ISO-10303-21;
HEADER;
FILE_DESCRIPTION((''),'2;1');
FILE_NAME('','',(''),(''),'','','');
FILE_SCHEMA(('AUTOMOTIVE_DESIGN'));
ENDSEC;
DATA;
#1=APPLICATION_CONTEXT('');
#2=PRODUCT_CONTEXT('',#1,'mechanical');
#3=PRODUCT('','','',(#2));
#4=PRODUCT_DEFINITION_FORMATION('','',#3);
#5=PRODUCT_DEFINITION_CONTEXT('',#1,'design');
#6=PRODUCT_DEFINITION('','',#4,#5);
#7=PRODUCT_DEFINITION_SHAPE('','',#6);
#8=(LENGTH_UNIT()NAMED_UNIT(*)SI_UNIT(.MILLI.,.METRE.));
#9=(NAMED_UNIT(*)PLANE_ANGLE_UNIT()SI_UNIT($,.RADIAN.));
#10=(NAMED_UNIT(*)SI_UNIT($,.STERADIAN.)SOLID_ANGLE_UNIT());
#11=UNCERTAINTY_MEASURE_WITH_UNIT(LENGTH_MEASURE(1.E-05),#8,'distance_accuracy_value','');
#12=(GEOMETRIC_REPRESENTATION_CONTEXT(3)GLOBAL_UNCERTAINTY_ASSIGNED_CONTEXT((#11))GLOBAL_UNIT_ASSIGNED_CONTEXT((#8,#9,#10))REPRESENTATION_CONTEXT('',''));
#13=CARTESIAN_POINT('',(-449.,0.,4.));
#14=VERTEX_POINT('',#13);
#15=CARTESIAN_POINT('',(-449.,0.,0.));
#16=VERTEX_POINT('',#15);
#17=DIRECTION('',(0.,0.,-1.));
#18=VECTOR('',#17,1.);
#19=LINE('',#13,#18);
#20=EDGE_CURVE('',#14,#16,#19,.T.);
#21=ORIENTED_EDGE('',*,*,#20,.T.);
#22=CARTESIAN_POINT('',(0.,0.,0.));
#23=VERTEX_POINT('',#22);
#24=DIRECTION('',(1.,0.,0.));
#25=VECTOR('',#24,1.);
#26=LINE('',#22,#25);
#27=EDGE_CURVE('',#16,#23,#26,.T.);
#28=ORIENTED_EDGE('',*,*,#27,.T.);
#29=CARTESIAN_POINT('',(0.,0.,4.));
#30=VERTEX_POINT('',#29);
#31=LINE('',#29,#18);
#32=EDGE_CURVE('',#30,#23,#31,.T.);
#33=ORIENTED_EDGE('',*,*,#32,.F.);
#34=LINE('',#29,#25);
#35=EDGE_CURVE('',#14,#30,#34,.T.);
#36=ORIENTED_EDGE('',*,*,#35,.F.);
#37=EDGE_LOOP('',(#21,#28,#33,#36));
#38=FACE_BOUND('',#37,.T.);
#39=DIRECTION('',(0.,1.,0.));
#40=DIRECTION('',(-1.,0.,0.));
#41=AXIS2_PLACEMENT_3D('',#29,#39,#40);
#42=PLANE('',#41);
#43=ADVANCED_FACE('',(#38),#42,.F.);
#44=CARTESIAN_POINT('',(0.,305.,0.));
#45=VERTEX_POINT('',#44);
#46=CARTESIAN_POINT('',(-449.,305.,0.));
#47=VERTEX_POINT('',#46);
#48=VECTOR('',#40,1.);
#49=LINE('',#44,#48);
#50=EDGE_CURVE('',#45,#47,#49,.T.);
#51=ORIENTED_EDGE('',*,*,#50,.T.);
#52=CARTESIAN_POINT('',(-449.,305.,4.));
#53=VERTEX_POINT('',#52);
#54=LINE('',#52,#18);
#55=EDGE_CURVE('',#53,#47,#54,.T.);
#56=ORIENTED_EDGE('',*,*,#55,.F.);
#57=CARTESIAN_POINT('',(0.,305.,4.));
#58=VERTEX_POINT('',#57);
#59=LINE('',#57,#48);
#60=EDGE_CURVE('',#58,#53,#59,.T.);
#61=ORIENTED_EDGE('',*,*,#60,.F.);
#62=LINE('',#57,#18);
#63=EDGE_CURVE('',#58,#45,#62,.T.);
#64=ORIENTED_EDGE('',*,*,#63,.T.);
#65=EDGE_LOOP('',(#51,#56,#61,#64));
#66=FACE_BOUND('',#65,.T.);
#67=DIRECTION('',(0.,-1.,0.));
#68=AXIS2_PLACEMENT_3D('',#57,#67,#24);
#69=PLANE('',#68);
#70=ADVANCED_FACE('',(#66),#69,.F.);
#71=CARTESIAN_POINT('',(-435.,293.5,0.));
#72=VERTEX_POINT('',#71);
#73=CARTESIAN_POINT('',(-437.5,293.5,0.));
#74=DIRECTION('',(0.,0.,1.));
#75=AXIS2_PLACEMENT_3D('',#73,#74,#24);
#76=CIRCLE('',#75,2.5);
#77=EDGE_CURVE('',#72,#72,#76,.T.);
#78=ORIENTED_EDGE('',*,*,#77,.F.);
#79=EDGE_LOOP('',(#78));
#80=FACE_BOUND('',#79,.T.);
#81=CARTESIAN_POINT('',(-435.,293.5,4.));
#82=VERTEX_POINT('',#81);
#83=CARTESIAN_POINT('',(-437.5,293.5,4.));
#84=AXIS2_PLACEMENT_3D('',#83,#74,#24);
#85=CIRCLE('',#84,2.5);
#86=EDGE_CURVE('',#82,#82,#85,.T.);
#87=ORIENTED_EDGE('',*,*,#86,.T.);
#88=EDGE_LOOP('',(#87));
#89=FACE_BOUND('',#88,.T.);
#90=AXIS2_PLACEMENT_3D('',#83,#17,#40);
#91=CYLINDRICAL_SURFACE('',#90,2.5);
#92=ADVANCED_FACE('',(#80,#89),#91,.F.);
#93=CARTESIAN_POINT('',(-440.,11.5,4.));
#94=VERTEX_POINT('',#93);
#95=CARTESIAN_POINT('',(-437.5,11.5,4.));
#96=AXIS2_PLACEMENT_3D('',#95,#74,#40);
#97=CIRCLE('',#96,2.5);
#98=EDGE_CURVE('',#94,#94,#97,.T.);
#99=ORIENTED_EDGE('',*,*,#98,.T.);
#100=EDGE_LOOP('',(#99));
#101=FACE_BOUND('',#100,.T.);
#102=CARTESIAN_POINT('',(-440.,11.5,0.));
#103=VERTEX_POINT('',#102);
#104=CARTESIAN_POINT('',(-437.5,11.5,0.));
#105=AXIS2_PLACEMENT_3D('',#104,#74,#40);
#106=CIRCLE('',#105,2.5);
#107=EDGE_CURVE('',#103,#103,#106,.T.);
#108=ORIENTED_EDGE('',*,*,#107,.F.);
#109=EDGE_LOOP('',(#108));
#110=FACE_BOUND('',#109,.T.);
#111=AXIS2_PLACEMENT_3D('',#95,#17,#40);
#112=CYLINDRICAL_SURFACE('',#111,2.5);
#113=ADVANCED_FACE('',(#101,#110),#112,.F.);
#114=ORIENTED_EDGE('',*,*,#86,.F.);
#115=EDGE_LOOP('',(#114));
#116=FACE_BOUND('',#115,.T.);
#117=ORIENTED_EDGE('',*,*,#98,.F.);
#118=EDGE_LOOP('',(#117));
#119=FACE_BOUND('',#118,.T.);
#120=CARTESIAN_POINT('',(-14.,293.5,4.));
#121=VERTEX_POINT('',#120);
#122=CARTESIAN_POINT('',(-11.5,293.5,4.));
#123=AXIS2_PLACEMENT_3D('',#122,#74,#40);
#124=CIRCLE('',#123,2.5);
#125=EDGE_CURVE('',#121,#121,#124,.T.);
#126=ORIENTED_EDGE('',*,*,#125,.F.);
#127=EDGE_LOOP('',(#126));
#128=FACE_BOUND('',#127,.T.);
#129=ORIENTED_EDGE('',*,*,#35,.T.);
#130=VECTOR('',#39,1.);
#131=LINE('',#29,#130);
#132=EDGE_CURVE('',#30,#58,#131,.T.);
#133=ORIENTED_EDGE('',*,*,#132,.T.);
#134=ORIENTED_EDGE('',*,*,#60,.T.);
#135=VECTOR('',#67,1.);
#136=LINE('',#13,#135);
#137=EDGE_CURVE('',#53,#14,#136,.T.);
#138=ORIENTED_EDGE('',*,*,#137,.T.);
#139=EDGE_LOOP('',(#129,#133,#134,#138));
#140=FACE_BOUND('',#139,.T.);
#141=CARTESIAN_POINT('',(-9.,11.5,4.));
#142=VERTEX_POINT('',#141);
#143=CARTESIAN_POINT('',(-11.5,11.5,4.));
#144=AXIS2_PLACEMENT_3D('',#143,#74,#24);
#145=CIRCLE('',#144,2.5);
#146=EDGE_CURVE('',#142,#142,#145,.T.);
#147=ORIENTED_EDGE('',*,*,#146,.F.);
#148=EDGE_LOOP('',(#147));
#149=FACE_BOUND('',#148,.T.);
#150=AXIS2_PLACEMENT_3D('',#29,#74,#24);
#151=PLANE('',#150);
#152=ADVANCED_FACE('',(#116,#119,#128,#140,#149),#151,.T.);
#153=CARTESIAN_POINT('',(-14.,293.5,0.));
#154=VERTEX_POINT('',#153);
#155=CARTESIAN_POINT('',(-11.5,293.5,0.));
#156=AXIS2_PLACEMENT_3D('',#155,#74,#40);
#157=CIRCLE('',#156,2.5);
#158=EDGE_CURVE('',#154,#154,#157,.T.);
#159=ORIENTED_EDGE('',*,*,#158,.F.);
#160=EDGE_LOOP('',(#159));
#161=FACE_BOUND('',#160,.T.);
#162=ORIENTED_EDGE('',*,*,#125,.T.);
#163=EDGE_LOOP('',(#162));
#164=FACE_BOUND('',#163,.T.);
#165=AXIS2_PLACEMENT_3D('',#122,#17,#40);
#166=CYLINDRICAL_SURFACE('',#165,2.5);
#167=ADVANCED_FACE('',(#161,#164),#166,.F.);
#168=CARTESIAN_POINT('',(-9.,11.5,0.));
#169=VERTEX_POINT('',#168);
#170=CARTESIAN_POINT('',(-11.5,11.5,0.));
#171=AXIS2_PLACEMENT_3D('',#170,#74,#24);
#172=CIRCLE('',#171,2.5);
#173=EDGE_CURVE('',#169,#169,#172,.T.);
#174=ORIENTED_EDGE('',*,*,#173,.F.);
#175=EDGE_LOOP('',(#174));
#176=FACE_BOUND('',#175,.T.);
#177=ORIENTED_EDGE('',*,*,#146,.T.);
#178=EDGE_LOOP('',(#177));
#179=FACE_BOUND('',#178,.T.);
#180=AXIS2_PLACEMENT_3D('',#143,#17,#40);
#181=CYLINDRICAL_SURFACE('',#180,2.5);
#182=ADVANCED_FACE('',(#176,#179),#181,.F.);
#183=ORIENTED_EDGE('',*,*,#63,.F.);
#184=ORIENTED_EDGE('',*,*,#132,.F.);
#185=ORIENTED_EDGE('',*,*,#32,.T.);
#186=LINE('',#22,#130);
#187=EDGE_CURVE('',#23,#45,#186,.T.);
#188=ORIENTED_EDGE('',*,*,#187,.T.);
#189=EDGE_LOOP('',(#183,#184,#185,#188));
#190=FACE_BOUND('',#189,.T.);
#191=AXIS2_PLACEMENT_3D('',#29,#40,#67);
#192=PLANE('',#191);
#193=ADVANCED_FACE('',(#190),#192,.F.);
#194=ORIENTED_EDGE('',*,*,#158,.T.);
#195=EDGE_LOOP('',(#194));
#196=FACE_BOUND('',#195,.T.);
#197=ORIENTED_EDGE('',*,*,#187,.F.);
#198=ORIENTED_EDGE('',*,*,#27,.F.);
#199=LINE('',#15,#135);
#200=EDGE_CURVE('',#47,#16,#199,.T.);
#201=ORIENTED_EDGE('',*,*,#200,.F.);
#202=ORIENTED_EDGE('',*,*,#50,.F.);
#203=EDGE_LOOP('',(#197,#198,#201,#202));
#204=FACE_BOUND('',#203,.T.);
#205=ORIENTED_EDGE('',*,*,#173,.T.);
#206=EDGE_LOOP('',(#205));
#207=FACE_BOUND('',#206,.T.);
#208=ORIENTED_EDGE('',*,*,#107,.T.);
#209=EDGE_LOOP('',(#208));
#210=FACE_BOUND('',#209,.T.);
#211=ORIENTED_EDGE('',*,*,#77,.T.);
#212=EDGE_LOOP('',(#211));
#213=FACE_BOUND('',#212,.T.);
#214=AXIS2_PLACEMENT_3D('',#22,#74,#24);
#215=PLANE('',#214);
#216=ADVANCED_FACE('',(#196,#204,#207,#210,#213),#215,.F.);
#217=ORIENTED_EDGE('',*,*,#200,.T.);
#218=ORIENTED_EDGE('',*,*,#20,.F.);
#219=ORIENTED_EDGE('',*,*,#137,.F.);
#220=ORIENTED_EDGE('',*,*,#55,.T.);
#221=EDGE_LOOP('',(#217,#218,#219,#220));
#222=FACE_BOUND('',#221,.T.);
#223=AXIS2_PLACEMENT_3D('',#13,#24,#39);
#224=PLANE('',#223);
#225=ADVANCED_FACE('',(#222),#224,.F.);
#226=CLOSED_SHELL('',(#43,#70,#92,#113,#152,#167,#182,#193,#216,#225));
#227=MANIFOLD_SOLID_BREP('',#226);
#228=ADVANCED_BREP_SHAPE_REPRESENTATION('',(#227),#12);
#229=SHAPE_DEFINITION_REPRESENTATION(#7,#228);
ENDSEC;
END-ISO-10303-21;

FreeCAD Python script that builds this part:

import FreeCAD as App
import Part
import Sketcher


def add_polygon(sketch, points):
    """Adds a closed chain of lines whose ends are joined by coincident constraints."""
    first, n = sketch.GeometryCount, len(points)
    for a, b in zip(points, points[1:] + points[:1]):
        sketch.addGeometry(Part.LineSegment(App.Vector(*a, 0), App.Vector(*b, 0)), False)
    for i in range(n):
        sketch.addConstraint(Sketcher.Constraint("Coincident", first + i, 2, first + (i + 1) % n, 1))

doc = App.newDocument("Part")
body = doc.addObject("PartDesign::Body", "Body")

# Sketch on XY plane
sketch1 = body.newObject("Sketcher::SketchObject", "Sketch")
sketch1.AttachmentSupport = (doc.getObject("XY_Plane"), [""])
sketch1.MapMode = "FlatFace"
add_polygon(sketch1, [(-449, 305), (-449, 0), (0, 0), (0, 305)])  # lines 0-3
sketch1.addGeometry(Part.Circle(App.Vector(-437.5, 11.5, 0), App.Vector(0, 0, 1), 2.5), False)  # 4
sketch1.addGeometry(Part.Circle(App.Vector(-11.5, 11.5, 0), App.Vector(0, 0, 1), 2.5), False)  # 5
sketch1.addGeometry(Part.Circle(App.Vector(-437.5, 293.5, 0), App.Vector(0, 0, 1), 2.5), False)  # 6
sketch1.addGeometry(Part.Circle(App.Vector(-11.5, 293.5, 0), App.Vector(0, 0, 1), 2.5), False)  # 7
sketch1.addConstraint([
    Sketcher.Constraint("Vertical", 0),
    Sketcher.Constraint("Horizontal", 1),
    Sketcher.Constraint("Vertical", 2),
    Sketcher.Constraint("Horizontal", 3),
    Sketcher.Constraint("Coincident", 1, 2, -1, 1),
    Sketcher.Constraint("Equal", 4, 5),
    Sketcher.Constraint("Equal", 5, 6),
    Sketcher.Constraint("Equal", 6, 7),
    Sketcher.Constraint("Horizontal", 4, 3, 5, 3),
    Sketcher.Constraint("Horizontal", 6, 3, 7, 3),
    Sketcher.Constraint("Vertical", 4, 3, 6, 3),
    Sketcher.Constraint("Vertical", 5, 3, 7, 3),
    Sketcher.Constraint("Diameter", 4, 5.0),
    Sketcher.Constraint("DistanceX", 1, 1, 1, 2, 449.0),
    Sketcher.Constraint("DistanceY", 0, 2, 0, 1, 305.0),
    Sketcher.Constraint("DistanceX", 4, 3, 5, 3, 426.0),
    Sketcher.Constraint("DistanceY", 4, 3, 6, 3, 282.0),
    Sketcher.Constraint("DistanceX", 4, 3, -1, 1, 437.5),
    Sketcher.Constraint("DistanceY", -1, 1, 4, 3, 11.5),
])
pad1 = body.newObject("PartDesign::Pad", "Pad")
pad1.Profile = sketch1
pad1.Length = 4

doc.recompute()
